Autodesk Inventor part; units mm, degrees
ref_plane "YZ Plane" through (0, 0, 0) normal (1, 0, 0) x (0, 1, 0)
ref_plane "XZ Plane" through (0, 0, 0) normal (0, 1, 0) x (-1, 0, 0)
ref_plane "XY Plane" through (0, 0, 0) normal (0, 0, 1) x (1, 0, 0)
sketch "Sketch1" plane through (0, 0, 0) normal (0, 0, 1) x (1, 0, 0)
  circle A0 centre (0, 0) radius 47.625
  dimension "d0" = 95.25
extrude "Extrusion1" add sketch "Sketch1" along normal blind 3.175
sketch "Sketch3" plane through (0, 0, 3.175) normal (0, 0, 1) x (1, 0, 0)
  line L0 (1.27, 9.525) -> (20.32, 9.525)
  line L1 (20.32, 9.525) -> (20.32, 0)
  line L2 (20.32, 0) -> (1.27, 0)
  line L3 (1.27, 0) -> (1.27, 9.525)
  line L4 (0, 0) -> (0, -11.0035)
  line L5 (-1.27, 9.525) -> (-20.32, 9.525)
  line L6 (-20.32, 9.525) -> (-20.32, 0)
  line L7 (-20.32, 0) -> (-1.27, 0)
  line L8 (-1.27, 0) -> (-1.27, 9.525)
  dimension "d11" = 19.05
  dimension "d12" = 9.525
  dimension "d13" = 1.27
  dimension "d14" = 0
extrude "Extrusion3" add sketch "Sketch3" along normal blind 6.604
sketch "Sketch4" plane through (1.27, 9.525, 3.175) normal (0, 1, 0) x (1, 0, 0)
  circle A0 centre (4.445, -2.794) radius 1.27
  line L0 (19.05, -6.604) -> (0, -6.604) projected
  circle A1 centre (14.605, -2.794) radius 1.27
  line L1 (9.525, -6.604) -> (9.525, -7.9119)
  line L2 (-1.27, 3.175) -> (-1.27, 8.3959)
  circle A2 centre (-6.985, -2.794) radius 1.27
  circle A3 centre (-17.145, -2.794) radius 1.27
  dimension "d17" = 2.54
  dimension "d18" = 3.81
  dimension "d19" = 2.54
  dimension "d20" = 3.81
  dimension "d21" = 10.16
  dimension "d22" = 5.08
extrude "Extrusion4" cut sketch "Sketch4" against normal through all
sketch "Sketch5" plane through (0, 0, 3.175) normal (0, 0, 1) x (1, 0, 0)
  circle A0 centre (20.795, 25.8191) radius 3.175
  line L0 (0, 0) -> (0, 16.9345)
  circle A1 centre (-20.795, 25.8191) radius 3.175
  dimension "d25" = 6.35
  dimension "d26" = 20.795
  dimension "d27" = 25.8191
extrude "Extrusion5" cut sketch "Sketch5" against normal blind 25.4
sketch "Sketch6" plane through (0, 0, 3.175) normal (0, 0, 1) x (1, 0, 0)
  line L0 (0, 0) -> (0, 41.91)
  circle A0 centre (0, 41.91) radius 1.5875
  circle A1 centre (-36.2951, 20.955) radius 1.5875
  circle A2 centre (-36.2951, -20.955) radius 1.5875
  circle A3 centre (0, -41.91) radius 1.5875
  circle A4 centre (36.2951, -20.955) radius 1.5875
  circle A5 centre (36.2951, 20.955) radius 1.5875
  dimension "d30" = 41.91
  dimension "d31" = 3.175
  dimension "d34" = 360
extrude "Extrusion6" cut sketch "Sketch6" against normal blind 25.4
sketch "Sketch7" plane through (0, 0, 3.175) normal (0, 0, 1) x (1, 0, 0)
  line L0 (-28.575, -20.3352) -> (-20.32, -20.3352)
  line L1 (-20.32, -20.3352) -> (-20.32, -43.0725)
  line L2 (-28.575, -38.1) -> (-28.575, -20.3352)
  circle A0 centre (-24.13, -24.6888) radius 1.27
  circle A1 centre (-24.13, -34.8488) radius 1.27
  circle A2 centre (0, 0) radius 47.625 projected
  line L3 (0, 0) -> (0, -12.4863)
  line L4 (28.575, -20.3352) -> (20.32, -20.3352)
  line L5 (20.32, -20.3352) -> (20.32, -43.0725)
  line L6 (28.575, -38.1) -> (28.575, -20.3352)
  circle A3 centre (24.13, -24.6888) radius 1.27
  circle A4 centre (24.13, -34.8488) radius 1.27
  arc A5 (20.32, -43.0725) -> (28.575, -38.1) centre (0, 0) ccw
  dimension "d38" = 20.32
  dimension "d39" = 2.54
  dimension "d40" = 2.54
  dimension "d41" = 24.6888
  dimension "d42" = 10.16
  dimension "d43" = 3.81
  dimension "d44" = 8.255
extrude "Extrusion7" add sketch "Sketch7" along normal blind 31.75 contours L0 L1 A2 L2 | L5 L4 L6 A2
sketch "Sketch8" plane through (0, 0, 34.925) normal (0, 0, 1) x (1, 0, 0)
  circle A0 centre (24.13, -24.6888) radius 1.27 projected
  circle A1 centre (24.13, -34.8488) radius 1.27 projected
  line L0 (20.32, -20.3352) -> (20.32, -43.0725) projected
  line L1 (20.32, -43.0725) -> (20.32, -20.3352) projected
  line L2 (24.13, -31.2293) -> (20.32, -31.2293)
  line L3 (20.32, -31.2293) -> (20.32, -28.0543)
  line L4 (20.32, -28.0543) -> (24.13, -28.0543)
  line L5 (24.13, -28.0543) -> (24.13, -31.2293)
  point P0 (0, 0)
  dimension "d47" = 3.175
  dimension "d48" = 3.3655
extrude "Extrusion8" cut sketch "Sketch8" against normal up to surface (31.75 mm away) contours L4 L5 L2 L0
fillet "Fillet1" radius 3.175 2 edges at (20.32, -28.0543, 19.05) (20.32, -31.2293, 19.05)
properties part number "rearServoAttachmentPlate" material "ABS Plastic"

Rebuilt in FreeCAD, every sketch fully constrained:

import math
import FreeCAD as App
import Part
import Sketcher

V = App.Vector
Q = App.Units.Quantity


def edges_at(feature, points):
    """Names of the edges that pass closest to the given points."""
    edges = feature.Shape.Edges
    near = lambda p: min(range(len(edges)), key=lambda i: edges[i].distToShape(Part.Vertex(*p))[0])
    return sorted({f"Edge{near(p) + 1}" for p in points})

doc = App.newDocument("Part")
body = doc.addObject("PartDesign::Body", "Body")

sketch1 = body.newObject("Sketcher::SketchObject", "Sketch")
sketch1.AttachmentSupport = (doc.getObject("XY_Plane"), [""])
sketch1.MapMode = "FlatFace"
sketch1.addGeometry(Part.Circle(V(0, 0, 0), V(0, 0, 1), 48), False)
sketch1.addConstraint(Sketcher.Constraint("Coincident", 0, 3, -1, 1))
sketch1.addConstraint(Sketcher.Constraint("Diameter", 0, Q("3.75 in")))
pad1 = body.newObject("PartDesign::Pad", "Pad")
pad1.Profile = sketch1
pad1.Length = Q("0.125 in")

sketch2 = body.newObject("Sketcher::SketchObject", "Sketch001")
sketch2.AttachmentSupport = (doc.getObject("XY_Plane"), [""])
sketch2.MapMode = "FlatFace"
sketch2.AttachmentOffset = App.Placement(V(0, 0, 0.125 * 25.4), App.Rotation())
sketch2.addGeometry(Part.LineSegment(V(20, 10, 0), V(1, 10, 0)), False)
sketch2.addGeometry(Part.LineSegment(V(1, 10, 0), V(1, 0, 0)), False)
sketch2.addGeometry(Part.LineSegment(V(1, 0, 0), V(20, 0, 0)), False)
sketch2.addGeometry(Part.LineSegment(V(20, 0, 0), V(20, 10, 0)), False)
sketch2.addGeometry(Part.LineSegment(V(-1, 0, 0), V(-1, 10, 0)), False)
sketch2.addGeometry(Part.LineSegment(V(-1, 10, 0), V(-20, 10, 0)), False)
sketch2.addGeometry(Part.LineSegment(V(-20, 10, 0), V(-20, 0, 0)), False)
sketch2.addGeometry(Part.LineSegment(V(-20, 0, 0), V(-1, 0, 0)), False)
sketch2.addConstraint(Sketcher.Constraint("Coincident", 0, 2, 1, 1))
sketch2.addConstraint(Sketcher.Constraint("Coincident", 1, 2, 2, 1))
sketch2.addConstraint(Sketcher.Constraint("Coincident", 2, 2, 3, 1))
sketch2.addConstraint(Sketcher.Constraint("Coincident", 3, 2, 0, 1))
sketch2.addConstraint(Sketcher.Constraint("Coincident", 4, 2, 5, 1))
sketch2.addConstraint(Sketcher.Constraint("Coincident", 5, 2, 6, 1))
sketch2.addConstraint(Sketcher.Constraint("Coincident", 6, 2, 7, 1))
sketch2.addConstraint(Sketcher.Constraint("Coincident", 7, 2, 4, 1))
sketch2.addConstraint(Sketcher.Constraint("Horizontal", 0))
sketch2.addConstraint(Sketcher.Constraint("Vertical", 1))
sketch2.addConstraint(Sketcher.Constraint("Horizontal", 2))
sketch2.addConstraint(Sketcher.Constraint("Vertical", 3))
sketch2.addConstraint(Sketcher.Constraint("Vertical", 4))
sketch2.addConstraint(Sketcher.Constraint("Horizontal", 5))
sketch2.addConstraint(Sketcher.Constraint("Vertical", 6))
sketch2.addConstraint(Sketcher.Constraint("Horizontal", 7))
sketch2.addConstraint(Sketcher.Constraint("Symmetric", 2, 2, 6, 2, -1, 1))
sketch2.addConstraint(Sketcher.Constraint("Symmetric", 0, 2, 4, 2, -2))
sketch2.addConstraint(Sketcher.Constraint("PointOnObject", 1, 2, -1))
sketch2.addConstraint(Sketcher.Constraint("DistanceX", 0, 2, 0, 1, Q("0.75 in")))
sketch2.addConstraint(Sketcher.Constraint("DistanceY", 1, 2, 1, 1, Q("0.375 in")))
sketch2.addConstraint(Sketcher.Constraint("DistanceX", -1, 1, 0, 2, Q("0.05 in")))
pad2 = body.newObject("PartDesign::Pad", "Pad001")
pad2.Profile = sketch2
pad2.Length = Q("0.26 in")

sketch3 = body.newObject("Sketcher::SketchObject", "Sketch002")
sketch3.AttachmentSupport = (doc.getObject("XZ_Plane"), [""])
sketch3.MapMode = "FlatFace"
sketch3.AttachmentOffset = App.Placement(V(0, 0, -0.375 * 25.4), App.Rotation())
sketch3.addGeometry(Part.Circle(V(5.7, 6, 0), V(0, 0, 1), 1.3), False)
sketch3.addGeometry(Part.Circle(V(15.9, 6, 0), V(0, 0, 1), 1.3), False)
sketch3.addGeometry(Part.Circle(V(-5.7, 6, 0), V(0, 0, 1), 1.3), False)
sketch3.addGeometry(Part.Circle(V(-15.9, 6, 0), V(0, 0, 1), 1.3), False)
sketch3.addConstraint(Sketcher.Constraint("Equal", 0, 1))
sketch3.addConstraint(Sketcher.Constraint("Equal", 1, 2))
sketch3.addConstraint(Sketcher.Constraint("Equal", 2, 3))
sketch3.addConstraint(Sketcher.Constraint("Symmetric", 0, 3, 2, 3, -2))
sketch3.addConstraint(Sketcher.Constraint("Symmetric", 1, 3, 3, 3, -2))
sketch3.addConstraint(Sketcher.Constraint("Horizontal", 0, 3, 1, 3))
sketch3.addConstraint(Sketcher.Constraint("Diameter", 0, Q("0.1 in")))
sketch3.addConstraint(Sketcher.Constraint("DistanceX", 0, 3, 1, 3, Q("0.4 in")))
sketch3.addConstraint(Sketcher.Constraint("DistanceX", 2, 3, 0, 3, Q("0.45 in")))
sketch3.addConstraint(Sketcher.Constraint("DistanceY", -1, 1, 0, 3, Q("0.235 in")))
pocket1 = body.newObject("PartDesign::Pocket", "Pocket")
pocket1.Profile = sketch3
pocket1.Type = "ThroughAll"
pocket1.Reversed = True

sketch4 = body.newObject("Sketcher::SketchObject", "Sketch003")
sketch4.AttachmentSupport = (doc.getObject("XY_Plane"), [""])
sketch4.MapMode = "FlatFace"
sketch4.AttachmentOffset = App.Placement(V(0, 0, 0.125 * 25.4), App.Rotation())
sketch4.addGeometry(Part.Circle(V(20.8, 25.8, 0), V(0, 0, 1), 3.2), False)
sketch4.addGeometry(Part.Circle(V(-20.8, 25.8, 0), V(0, 0, 1), 3.2), False)
sketch4.addConstraint(Sketcher.Constraint("Equal", 0, 1))
sketch4.addConstraint(Sketcher.Constraint("Symmetric", 0, 3, 1, 3, -2))
sketch4.addConstraint(Sketcher.Constraint("Diameter", 0, Q("0.25 in")))
sketch4.addConstraint(Sketcher.Constraint("DistanceX", -1, 1, 0, 3, Q("0.8187 in")))
sketch4.addConstraint(Sketcher.Constraint("DistanceY", -1, 1, 0, 3, Q("1.0165 in")))
pocket2 = body.newObject("PartDesign::Pocket", "Pocket001")
pocket2.Profile = sketch4
pocket2.Length = Q("1 in")

sketch5 = body.newObject("Sketcher::SketchObject", "Sketch004")
sketch5.AttachmentSupport = (doc.getObject("XY_Plane"), [""])
sketch5.MapMode = "FlatFace"
sketch5.AttachmentOffset = App.Placement(V(0, 0, 0.125 * 25.4), App.Rotation())
sketch5.addGeometry(Part.Circle(V(0, 41.9, 0), V(0, 0, 1), 1.6), False)
sketch5.addGeometry(Part.Circle(V(-36.3, 21, 0), V(0, 0, 1), 1.6), False)
sketch5.addGeometry(Part.Circle(V(-36.3, -21, 0), V(0, 0, 1), 1.6), False)
sketch5.addGeometry(Part.Circle(V(0, -41.9, 0), V(0, 0, 1), 1.6), False)
sketch5.addGeometry(Part.Circle(V(36.3, -21, 0), V(0, 0, 1), 1.6), False)
sketch5.addGeometry(Part.Circle(V(36.3, 21, 0), V(0, 0, 1), 1.6), False)
sketch5.addConstraint(Sketcher.Constraint("Equal", 0, 1))
sketch5.addConstraint(Sketcher.Constraint("Equal", 1, 2))
sketch5.addConstraint(Sketcher.Constraint("Equal", 2, 3))
sketch5.addConstraint(Sketcher.Constraint("Equal", 3, 4))
sketch5.addConstraint(Sketcher.Constraint("Equal", 4, 5))
sketch5.addConstraint(Sketcher.Constraint("Symmetric", 0, 3, 3, 3, -1, 1))
sketch5.addConstraint(Sketcher.Constraint("Symmetric", 1, 3, 4, 3, -1, 1))
sketch5.addConstraint(Sketcher.Constraint("Symmetric", 2, 3, 5, 3, -1, 1))
sketch5.addConstraint(Sketcher.Constraint("Symmetric", 2, 3, 4, 3, -2))
sketch5.addConstraint(Sketcher.Constraint("PointOnObject", 0, 3, -2))
sketch5.addConstraint(Sketcher.Constraint("Diameter", 0, Q("0.125 in")))
sketch5.addConstraint(Sketcher.Constraint("DistanceY", -1, 1, 0, 3, Q("1.65 in")))
sketch5.addConstraint(Sketcher.Constraint("DistanceY", 2, 3, 1, 3, Q("1.65 in")))
sketch5.addConstraint(Sketcher.Constraint("DistanceX", 1, 3, -1, 1, Q("36.295 mm")))
pocket3 = body.newObject("PartDesign::Pocket", "Pocket002")
pocket3.Profile = sketch5
pocket3.Length = Q("1 in")

sketch6 = body.newObject("Sketcher::SketchObject", "Sketch005")
sketch6.AttachmentSupport = (doc.getObject("XY_Plane"), [""])
sketch6.MapMode = "FlatFace"
sketch6.AttachmentOffset = App.Placement(V(0, 0, 0.125 * 25.4), App.Rotation())
sketch6.addGeometry(Part.LineSegment(V(-20.3, -20.3, 0), V(-28.6, -20.3, 0)), False)
sketch6.addGeometry(Part.LineSegment(V(-28.6, -20.3, 0), V(-28.6, -38.1, 0)), False)
sketch6.addGeometry(Part.ArcOfCircle(Part.Circle(V(0, 0, 0), V(0, 0, 1), 47.6), math.radians(-126.87), math.radians(-115.26)), False)
sketch6.addGeometry(Part.LineSegment(V(-20.3, -43.1, 0), V(-20.3, -20.3, 0)), False)
sketch6.addGeometry(Part.Circle(V(-24.1, -34.8, 0), V(0, 0, 1), 1.3), False)
sketch6.addGeometry(Part.Circle(V(-24.1, -24.7, 0), V(0, 0, 1), 1.3), False)
sketch6.addGeometry(Part.LineSegment(V(20.3, -20.3, 0), V(20.3, -43.1, 0)), False)
sketch6.addGeometry(Part.ArcOfCircle(Part.Circle(V(0, 0, 0), V(0, 0, 1), 47.6), math.radians(-64.74), math.radians(-53.13)), False)
sketch6.addGeometry(Part.LineSegment(V(28.6, -38.1, 0), V(28.6, -20.3, 0)), False)
sketch6.addGeometry(Part.LineSegment(V(28.6, -20.3, 0), V(20.3, -20.3, 0)), False)
sketch6.addGeometry(Part.Circle(V(24.1, -34.8, 0), V(0, 0, 1), 1.3), False)
sketch6.addGeometry(Part.Circle(V(24.1, -24.7, 0), V(0, 0, 1), 1.3), False)
sketch6.addConstraint(Sketcher.Constraint("Coincident", 0, 2, 1, 1))
sketch6.addConstraint(Sketcher.Constraint("Coincident", 1, 2, 2, 1))
sketch6.addConstraint(Sketcher.Constraint("Coincident", 2, 2, 3, 1))
sketch6.addConstraint(Sketcher.Constraint("Coincident", 3, 2, 0, 1))
sketch6.addConstraint(Sketcher.Constraint("Coincident", 6, 2, 7, 1))
sketch6.addConstraint(Sketcher.Constraint("Coincident", 7, 2, 8, 1))
sketch6.addConstraint(Sketcher.Constraint("Coincident", 8, 2, 9, 1))
sketch6.addConstraint(Sketcher.Constraint("Coincident", 9, 2, 6, 1))
sketch6.addConstraint(Sketcher.Constraint("Horizontal", 0))
sketch6.addConstraint(Sketcher.Constraint("Vertical", 1))
sketch6.addConstraint(Sketcher.Constraint("Vertical", 3))
sketch6.addConstraint(Sketcher.Constraint("Vertical", 6))
sketch6.addConstraint(Sketcher.Constraint("Vertical", 8))
sketch6.addConstraint(Sketcher.Constraint("Horizontal", 9))
sketch6.addConstraint(Sketcher.Constraint("Coincident", 2, 3, -1, 1))
sketch6.addConstraint(Sketcher.Constraint("Coincident", 7, 3, -1, 1))
sketch6.addConstraint(Sketcher.Constraint("Equal", 4, 5))
sketch6.addConstraint(Sketcher.Constraint("Equal", 2, 7))
sketch6.addConstraint(Sketcher.Constraint("Equal", 5, 10))
sketch6.addConstraint(Sketcher.Constraint("Equal", 10, 11))
sketch6.addConstraint(Sketcher.Constraint("Symmetric", 4, 3, 10, 3, -2))
sketch6.addConstraint(Sketcher.Constraint("Symmetric", 5, 3, 11, 3, -2))
sketch6.addConstraint(Sketcher.Constraint("Symmetric", 0, 2, 8, 2, -2))
sketch6.addConstraint(Sketcher.Constraint("Horizontal", 2, 2, 6, 2))
sketch6.addConstraint(Sketcher.Constraint("Vertical", 4, 3, 5, 3))
sketch6.addConstraint(Sketcher.Constraint("Diameter", 4, Q("0.1 in")))
sketch6.addConstraint(Sketcher.Constraint("DistanceX", 2, 2, -1, 1, Q("0.8 in")))
sketch6.addConstraint(Sketcher.Constraint("DistanceY", 4, 3, 5, 3, Q("0.4 in")))
sketch6.addConstraint(Sketcher.Constraint("DistanceX", 0, 2, 0, 1, Q("0.325 in")))
sketch6.addConstraint(Sketcher.Constraint("DistanceX", 4, 3, 2, 2, Q("0.15 in")))
sketch6.addConstraint(Sketcher.Constraint("DistanceY", 5, 3, -1, 1, Q("0.972 in")))
sketch6.addConstraint(Sketcher.Constraint("Radius", 2, Q("1.875 in")))
sketch6.addConstraint(Sketcher.Constraint("DistanceY", 1, 2, 1, 1, Q("0.6994 in")))
pad3 = body.newObject("PartDesign::Pad", "Pad002")
pad3.Profile = sketch6
pad3.Length = Q("1.25 in")

sketch7 = body.newObject("Sketcher::SketchObject", "Sketch006")
sketch7.AttachmentSupport = (doc.getObject("XY_Plane"), [""])
sketch7.MapMode = "FlatFace"
sketch7.AttachmentOffset = App.Placement(V(0, 0, 1.375 * 25.4), App.Rotation())
sketch7.addGeometry(Part.LineSegment(V(24.1, -28.1, 0), V(20.3, -28.1, 0)), False)
sketch7.addGeometry(Part.LineSegment(V(20.3, -28.1, 0), V(20.3, -31.2, 0)), False)
sketch7.addGeometry(Part.LineSegment(V(20.3, -31.2, 0), V(24.1, -31.2, 0)), False)
sketch7.addGeometry(Part.LineSegment(V(24.1, -31.2, 0), V(24.1, -28.1, 0)), False)
sketch7.addConstraint(Sketcher.Constraint("Coincident", 0, 2, 1, 1))
sketch7.addConstraint(Sketcher.Constraint("Coincident", 1, 2, 2, 1))
sketch7.addConstraint(Sketcher.Constraint("Coincident", 2, 2, 3, 1))
sketch7.addConstraint(Sketcher.Constraint("Coincident", 3, 2, 0, 1))
sketch7.addConstraint(Sketcher.Constraint("Horizontal", 0))
sketch7.addConstraint(Sketcher.Constraint("Vertical", 1))
sketch7.addConstraint(Sketcher.Constraint("Horizontal", 2))
sketch7.addConstraint(Sketcher.Constraint("Vertical", 3))
sketch7.addConstraint(Sketcher.Constraint("DistanceY", 1, 2, 1, 1, Q("0.125 in")))
sketch7.addConstraint(Sketcher.Constraint("DistanceX", 0, 2, 0, 1, Q("0.15 in")))
sketch7.addConstraint(Sketcher.Constraint("DistanceX", -1, 1, 0, 2, Q("0.8 in")))
sketch7.addConstraint(Sketcher.Constraint("DistanceY", 0, 2, -1, 1, Q("1.1045 in")))
pocket4 = body.newObject("PartDesign::Pocket", "Pocket003")
pocket4.Profile = sketch7
pocket4.Length = Q("1.25 in")
doc.recompute()

fillet = body.newObject("PartDesign::Fillet", "Fillet")
fillet.Base = (pocket4, edges_at(pocket4, [(20.32, -28.054, 19.05), (20.32, -31.229, 19.05)]))
fillet.Radius = Q("0.125 in")

doc.recompute()
